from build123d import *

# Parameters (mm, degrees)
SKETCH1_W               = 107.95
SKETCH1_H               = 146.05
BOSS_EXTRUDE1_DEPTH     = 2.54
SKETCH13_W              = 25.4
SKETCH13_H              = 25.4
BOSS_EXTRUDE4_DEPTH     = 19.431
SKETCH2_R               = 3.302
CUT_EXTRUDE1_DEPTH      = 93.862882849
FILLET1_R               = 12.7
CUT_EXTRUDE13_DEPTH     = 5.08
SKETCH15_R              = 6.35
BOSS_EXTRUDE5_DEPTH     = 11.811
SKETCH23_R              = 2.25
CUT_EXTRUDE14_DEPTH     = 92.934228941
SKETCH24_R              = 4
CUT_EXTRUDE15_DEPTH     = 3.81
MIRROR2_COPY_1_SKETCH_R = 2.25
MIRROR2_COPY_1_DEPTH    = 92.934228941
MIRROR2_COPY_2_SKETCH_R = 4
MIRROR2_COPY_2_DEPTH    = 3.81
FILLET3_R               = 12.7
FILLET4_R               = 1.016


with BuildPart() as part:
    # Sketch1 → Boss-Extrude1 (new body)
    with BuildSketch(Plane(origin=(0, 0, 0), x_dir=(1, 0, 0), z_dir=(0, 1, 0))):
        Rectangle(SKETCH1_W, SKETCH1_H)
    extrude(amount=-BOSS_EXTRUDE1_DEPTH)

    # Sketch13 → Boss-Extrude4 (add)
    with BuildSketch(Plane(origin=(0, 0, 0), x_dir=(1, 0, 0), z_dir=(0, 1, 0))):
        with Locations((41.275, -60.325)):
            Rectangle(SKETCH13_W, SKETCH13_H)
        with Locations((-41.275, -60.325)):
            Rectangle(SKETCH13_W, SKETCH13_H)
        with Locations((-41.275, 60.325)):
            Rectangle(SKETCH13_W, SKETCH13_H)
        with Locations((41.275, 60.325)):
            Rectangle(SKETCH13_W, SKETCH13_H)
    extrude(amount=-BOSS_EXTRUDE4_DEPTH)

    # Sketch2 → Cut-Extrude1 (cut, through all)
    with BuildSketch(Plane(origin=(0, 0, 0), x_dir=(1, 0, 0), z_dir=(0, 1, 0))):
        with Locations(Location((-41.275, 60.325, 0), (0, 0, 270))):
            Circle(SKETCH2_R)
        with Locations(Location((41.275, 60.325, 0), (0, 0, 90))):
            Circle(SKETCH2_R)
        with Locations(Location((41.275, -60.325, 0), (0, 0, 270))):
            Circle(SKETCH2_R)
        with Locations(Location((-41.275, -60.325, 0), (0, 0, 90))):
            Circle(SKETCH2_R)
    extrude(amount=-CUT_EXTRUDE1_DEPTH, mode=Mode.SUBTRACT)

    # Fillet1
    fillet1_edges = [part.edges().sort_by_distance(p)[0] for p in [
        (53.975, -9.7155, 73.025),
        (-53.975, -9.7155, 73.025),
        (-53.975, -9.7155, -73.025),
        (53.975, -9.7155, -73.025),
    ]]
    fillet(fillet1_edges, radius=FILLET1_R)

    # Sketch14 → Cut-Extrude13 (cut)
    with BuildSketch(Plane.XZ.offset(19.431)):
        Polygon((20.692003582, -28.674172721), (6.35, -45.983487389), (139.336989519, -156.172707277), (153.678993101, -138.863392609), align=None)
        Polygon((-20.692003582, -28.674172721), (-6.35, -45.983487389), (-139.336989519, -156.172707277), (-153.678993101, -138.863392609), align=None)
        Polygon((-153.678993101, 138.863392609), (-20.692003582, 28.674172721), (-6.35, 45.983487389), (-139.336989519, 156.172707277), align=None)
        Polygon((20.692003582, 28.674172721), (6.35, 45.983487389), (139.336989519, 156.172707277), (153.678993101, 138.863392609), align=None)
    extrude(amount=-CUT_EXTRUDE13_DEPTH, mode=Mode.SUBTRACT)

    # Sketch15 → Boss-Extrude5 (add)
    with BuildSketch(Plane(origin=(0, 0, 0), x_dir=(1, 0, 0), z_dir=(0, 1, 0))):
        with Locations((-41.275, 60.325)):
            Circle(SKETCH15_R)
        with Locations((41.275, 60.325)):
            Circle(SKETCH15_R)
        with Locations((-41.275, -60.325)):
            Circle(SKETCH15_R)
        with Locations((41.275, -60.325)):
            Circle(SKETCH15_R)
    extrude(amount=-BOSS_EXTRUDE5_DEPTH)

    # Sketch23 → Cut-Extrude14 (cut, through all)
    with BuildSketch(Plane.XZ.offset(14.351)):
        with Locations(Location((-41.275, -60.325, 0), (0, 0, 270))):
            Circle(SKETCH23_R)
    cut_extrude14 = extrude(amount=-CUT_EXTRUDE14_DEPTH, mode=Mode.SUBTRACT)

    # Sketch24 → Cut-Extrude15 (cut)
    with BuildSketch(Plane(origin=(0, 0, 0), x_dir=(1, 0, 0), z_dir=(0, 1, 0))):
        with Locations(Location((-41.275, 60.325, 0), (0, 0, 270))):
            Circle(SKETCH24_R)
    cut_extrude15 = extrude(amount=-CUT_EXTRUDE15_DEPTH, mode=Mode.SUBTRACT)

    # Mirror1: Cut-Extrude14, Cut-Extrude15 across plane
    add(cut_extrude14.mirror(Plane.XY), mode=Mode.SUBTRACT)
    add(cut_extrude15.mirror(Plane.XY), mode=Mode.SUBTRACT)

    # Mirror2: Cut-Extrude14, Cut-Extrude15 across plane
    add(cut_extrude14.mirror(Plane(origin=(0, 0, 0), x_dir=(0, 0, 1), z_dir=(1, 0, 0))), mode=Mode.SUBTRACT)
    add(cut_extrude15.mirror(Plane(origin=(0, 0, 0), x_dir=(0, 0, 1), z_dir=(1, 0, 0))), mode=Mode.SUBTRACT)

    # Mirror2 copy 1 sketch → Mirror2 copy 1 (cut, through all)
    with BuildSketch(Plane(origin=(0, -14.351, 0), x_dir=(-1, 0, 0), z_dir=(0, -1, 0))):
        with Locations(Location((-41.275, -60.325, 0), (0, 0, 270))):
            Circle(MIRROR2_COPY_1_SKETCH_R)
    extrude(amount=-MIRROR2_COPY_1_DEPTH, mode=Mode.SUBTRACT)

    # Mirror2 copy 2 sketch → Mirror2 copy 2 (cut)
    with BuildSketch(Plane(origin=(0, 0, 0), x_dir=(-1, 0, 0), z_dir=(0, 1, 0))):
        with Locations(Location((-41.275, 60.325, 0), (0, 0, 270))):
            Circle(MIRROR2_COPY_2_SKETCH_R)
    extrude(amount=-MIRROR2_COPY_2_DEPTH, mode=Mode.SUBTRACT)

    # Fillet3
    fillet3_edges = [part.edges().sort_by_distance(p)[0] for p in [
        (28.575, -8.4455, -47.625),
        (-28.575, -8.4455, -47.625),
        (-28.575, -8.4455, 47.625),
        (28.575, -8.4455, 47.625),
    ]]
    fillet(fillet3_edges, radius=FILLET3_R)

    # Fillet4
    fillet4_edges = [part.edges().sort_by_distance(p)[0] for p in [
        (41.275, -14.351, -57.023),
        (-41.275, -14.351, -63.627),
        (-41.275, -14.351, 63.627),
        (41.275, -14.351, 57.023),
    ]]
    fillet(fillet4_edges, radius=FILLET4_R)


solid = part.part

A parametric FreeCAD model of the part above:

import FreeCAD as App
import Part
import Sketcher

V = App.Vector
Q = App.Units.Quantity


def edges_at(feature, points):
    """Names of the edges that pass closest to the given points."""
    edges = feature.Shape.Edges
    near = lambda p: min(range(len(edges)), key=lambda i: edges[i].distToShape(Part.Vertex(*p))[0])
    return sorted({f"Edge{near(p) + 1}" for p in points})


def add_polygon(sketch, points):
    """Adds a closed chain of lines whose ends are joined by coincident constraints."""
    first, n = sketch.GeometryCount, len(points)
    for a, b in zip(points, points[1:] + points[:1]):
        sketch.addGeometry(Part.LineSegment(App.Vector(*a, 0), App.Vector(*b, 0)), False)
    for i in range(n):
        sketch.addConstraint(Sketcher.Constraint("Coincident", first + i, 2, first + (i + 1) % n, 1))

doc = App.newDocument("Part")
body = doc.addObject("PartDesign::Body", "Body")

# Sketch on XZ plane
sketch1 = body.newObject("Sketcher::SketchObject", "Sketch")
sketch1.AttachmentSupport = (doc.getObject("XZ_Plane"), [""])
sketch1.MapMode = "FlatFace"
add_polygon(sketch1, [(-54, -73), (-54, 73), (54, 73), (54, -73)])  # lines 0-3
sketch1.addConstraint(Sketcher.Constraint("Vertical", 0))
sketch1.addConstraint(Sketcher.Constraint("Horizontal", 1))
sketch1.addConstraint(Sketcher.Constraint("Vertical", 2))
sketch1.addConstraint(Sketcher.Constraint("Horizontal", 3))
sketch1.addConstraint(Sketcher.Constraint("Symmetric", 0, 2, 2, 2, -1, 1))
sketch1.addConstraint(Sketcher.Constraint("DistanceX", 1, 1, 1, 2, Q("4.25 in")))
sketch1.addConstraint(Sketcher.Constraint("DistanceY", 0, 1, 0, 2, Q("5.75 in")))
pad1 = body.newObject("PartDesign::Pad", "Pad")
pad1.Profile = sketch1
pad1.Length = Q("0.1 in")

# Sketch on XZ plane
sketch2 = body.newObject("Sketcher::SketchObject", "Sketch001")
sketch2.AttachmentSupport = (doc.getObject("XZ_Plane"), [""])
sketch2.MapMode = "FlatFace"
add_polygon(sketch2, [(29, 48), (29, 73), (54, 73), (54, 48)])  # lines 0-3
add_polygon(sketch2, [(-54, 48), (-54, 73), (-29, 73), (-29, 48)])  # lines 4-7
add_polygon(sketch2, [(-54, -73), (-54, -48), (-29, -48), (-29, -73)])  # lines 8-11
add_polygon(sketch2, [(29, -73), (29, -48), (54, -48), (54, -73)])  # lines 12-15
sketch2.addConstraint(Sketcher.Constraint("Vertical", 0))
sketch2.addConstraint(Sketcher.Constraint("Horizontal", 1))
sketch2.addConstraint(Sketcher.Constraint("Vertical", 2))
sketch2.addConstraint(Sketcher.Constraint("Horizontal", 3))
sketch2.addConstraint(Sketcher.Constraint("Vertical", 4))
sketch2.addConstraint(Sketcher.Constraint("Horizontal", 5))
sketch2.addConstraint(Sketcher.Constraint("Vertical", 6))
sketch2.addConstraint(Sketcher.Constraint("Horizontal", 7))
sketch2.addConstraint(Sketcher.Constraint("Vertical", 8))
sketch2.addConstraint(Sketcher.Constraint("Horizontal", 9))
sketch2.addConstraint(Sketcher.Constraint("Vertical", 10))
sketch2.addConstraint(Sketcher.Constraint("Horizontal", 11))
sketch2.addConstraint(Sketcher.Constraint("Vertical", 12))
sketch2.addConstraint(Sketcher.Constraint("Horizontal", 13))
sketch2.addConstraint(Sketcher.Constraint("Vertical", 14))
sketch2.addConstraint(Sketcher.Constraint("Horizontal", 15))
sketch2.addConstraint(Sketcher.Constraint("Symmetric", 2, 2, 8, 2, -1, 1))
sketch2.addConstraint(Sketcher.Constraint("Symmetric", 0, 2, 10, 2, -1, 1))
sketch2.addConstraint(Sketcher.Constraint("Symmetric", 6, 2, 12, 2, -1, 1))
sketch2.addConstraint(Sketcher.Constraint("Symmetric", 4, 2, 14, 2, -1, 1))
sketch2.addConstraint(Sketcher.Constraint("Symmetric", 1, 2, 4, 2, -2))
sketch2.addConstraint(Sketcher.Constraint("Symmetric", 3, 2, 6, 2, -2))
sketch2.addConstraint(Sketcher.Constraint("Equal", 15, 0))
sketch2.addConstraint(Sketcher.Constraint("DistanceX", 1, 1, 1, 2, Q("1 in")))
sketch2.addConstraint(Sketcher.Constraint("DistanceX", 4, 2, 0, 2, Q("3.25 in")))
sketch2.addConstraint(Sketcher.Constraint("DistanceY", 8, 2, 7, 2, Q("3.75 in")))
pad2 = body.newObject("PartDesign::Pad", "Pad001")
pad2.Profile = sketch2
pad2.Length = Q("0.765 in")

# Sketch on XZ plane
sketch3 = body.newObject("Sketcher::SketchObject", "Sketch002")
sketch3.AttachmentSupport = (doc.getObject("XZ_Plane"), [""])
sketch3.MapMode = "FlatFace"
sketch3.addGeometry(Part.Circle(V(-41.3, -60.3, 0), V(0, 0, 1), 3.3), False)
sketch3.addGeometry(Part.Circle(V(41.3, -60.3, 0), V(0, 0, 1), 3.3), False)
sketch3.addGeometry(Part.Circle(V(41.3, 60.3, 0), V(0, 0, 1), 3.3), False)
sketch3.addGeometry(Part.Circle(V(-41.3, 60.3, 0), V(0, 0, 1), 3.3), False)
sketch3.addConstraint(Sketcher.Constraint("Equal", 0, 1))
sketch3.addConstraint(Sketcher.Constraint("Equal", 1, 2))
sketch3.addConstraint(Sketcher.Constraint("Equal", 2, 3))
sketch3.addConstraint(Sketcher.Constraint("Symmetric", 0, 3, 2, 3, -1, 1))
sketch3.addConstraint(Sketcher.Constraint("Symmetric", 1, 3, 3, 3, -1, 1))
sketch3.addConstraint(Sketcher.Constraint("Symmetric", 0, 3, 1, 3, -2))
sketch3.addConstraint(Sketcher.Constraint("Diameter", 0, Q("0.26 in")))
sketch3.addConstraint(Sketcher.Constraint("DistanceX", 0, 3, 1, 3, Q("3.25 in")))
sketch3.addConstraint(Sketcher.Constraint("DistanceY", 1, 3, 2, 3, Q("4.75 in")))
pocket1 = body.newObject("PartDesign::Pocket", "Pocket")
pocket1.Profile = sketch3
pocket1.Type = "ThroughAll"
pocket1.Reversed = True
doc.recompute()

fillet = body.newObject("PartDesign::Fillet", "Fillet")
fillet.Base = (pocket1, edges_at(pocket1, [
    (53.975, -9.716, 73.025),
    (-53.975, -9.716, 73.025),
    (-53.975, -9.716, -73.025),
    (53.975, -9.716, -73.025),
]))
fillet.Radius = Q("0.5 in")

# Sketch on XZ plane
sketch4 = body.newObject("Sketcher::SketchObject", "Sketch003")
sketch4.AttachmentSupport = (doc.getObject("XZ_Plane"), [""])
sketch4.MapMode = "FlatFace"
sketch4.AttachmentOffset = App.Placement(V(0, 0, 0.765 * 25.4), App.Rotation())
add_polygon(sketch4, [(21, -29), (6, -46), (139, -156), (154, -139)])  # lines 0-3
add_polygon(sketch4, [(-6, -46), (-21, -29), (-154, -139), (-139, -156)])  # lines 4-7
add_polygon(sketch4, [(-154, 139), (-21, 29), (-6, 46), (-139, 156)])  # lines 8-11
add_polygon(sketch4, [(6, 46), (21, 29), (154, 139), (139, 156)])  # lines 12-15
sketch4.addConstraint(Sketcher.Constraint("Symmetric", 3, 2, 8, 2, -1, 1))
sketch4.addConstraint(Sketcher.Constraint("Symmetric", 0, 2, 9, 2, -1, 1))
sketch4.addConstraint(Sketcher.Constraint("Symmetric", 1, 2, 10, 2, -1, 1))
sketch4.addConstraint(Sketcher.Constraint("Symmetric", 2, 2, 11, 2, -1, 1))
sketch4.addConstraint(Sketcher.Constraint("Symmetric", 4, 2, 12, 2, -1, 1))
sketch4.addConstraint(Sketcher.Constraint("Symmetric", 5, 2, 13, 2, -1, 1))
sketch4.addConstraint(Sketcher.Constraint("Symmetric", 6, 2, 14, 2, -1, 1))
sketch4.addConstraint(Sketcher.Constraint("Symmetric", 7, 2, 15, 2, -1, 1))
sketch4.addConstraint(Sketcher.Constraint("Symmetric", 3, 2, 4, 2, -2))
sketch4.addConstraint(Sketcher.Constraint("Symmetric", 2, 2, 5, 2, -2))
sketch4.addConstraint(Sketcher.Constraint("Symmetric", 1, 2, 6, 2, -2))
sketch4.addConstraint(Sketcher.Constraint("Symmetric", 0, 2, 7, 2, -2))
sketch4.addConstraint(Sketcher.Constraint("Perpendicular", 0, 1))
sketch4.addConstraint(Sketcher.Constraint("Perpendicular", 1, 2))
sketch4.addConstraint(Sketcher.Constraint("Perpendicular", 2, 3))
sketch4.addConstraint(Sketcher.Constraint("DistanceX", 7, 2, 0, 2, Q("0.5 in")))
sketch4.addConstraint(Sketcher.Constraint("Distance", 0, Q("0.885 in")))
sketch4.addConstraint(Sketcher.Constraint("DistanceX", 4, 2, 2, 2, Q("6.8649999 in")))
sketch4.addConstraint(Sketcher.Constraint("Distance", 1, Q("172.70554 mm")))
sketch4.addConstraint(Sketcher.Constraint("DistanceY", 7, 2, 8, 2, Q("74.65766 mm")))
pocket2 = body.newObject("PartDesign::Pocket", "Pocket001")
pocket2.Profile = sketch4
pocket2.Length = Q("0.2 in")

# Sketch on XZ plane
sketch5 = body.newObject("Sketcher::SketchObject", "Sketch004")
sketch5.AttachmentSupport = (doc.getObject("XZ_Plane"), [""])
sketch5.MapMode = "FlatFace"
sketch5.addGeometry(Part.Circle(V(-41, -60, 0), V(0, 0, 1), 6), False)
sketch5.addGeometry(Part.Circle(V(41, -60, 0), V(0, 0, 1), 6), False)
sketch5.addGeometry(Part.Circle(V(-41, 60, 0), V(0, 0, 1), 6), False)
sketch5.addGeometry(Part.Circle(V(41, 60, 0), V(0, 0, 1), 6), False)
sketch5.addConstraint(Sketcher.Constraint("Equal", 0, 1))
sketch5.addConstraint(Sketcher.Constraint("Equal", 1, 2))
sketch5.addConstraint(Sketcher.Constraint("Equal", 2, 3))
sketch5.addConstraint(Sketcher.Constraint("Symmetric", 1, 3, 2, 3, -1, 1))
sketch5.addConstraint(Sketcher.Constraint("Symmetric", 0, 3, 3, 3, -1, 1))
sketch5.addConstraint(Sketcher.Constraint("Symmetric", 0, 3, 1, 3, -2))
sketch5.addConstraint(Sketcher.Constraint("Diameter", 0, Q("0.5 in")))
sketch5.addConstraint(Sketcher.Constraint("DistanceX", 0, 3, 1, 3, Q("3.25 in")))
sketch5.addConstraint(Sketcher.Constraint("DistanceY", 0, 3, 2, 3, Q("4.75 in")))
pad3 = body.newObject("PartDesign::Pad", "Pad002")
pad3.Profile = sketch5
pad3.Length = Q("0.465 in")

# Sketch on XZ plane
sketch6 = body.newObject("Sketcher::SketchObject", "Sketch005")
sketch6.AttachmentSupport = (doc.getObject("XZ_Plane"), [""])
sketch6.MapMode = "FlatFace"
sketch6.AttachmentOffset = App.Placement(V(0, 0, 0.565 * 25.4), App.Rotation())
sketch6.addGeometry(Part.Circle(V(-41.3, -60.3, 0), V(0, 0, 1), 2.2), False)
sketch6.addConstraint(Sketcher.Constraint("Diameter", 0, Q("4.5 mm")))
sketch6.addConstraint(Sketcher.Constraint("DistanceX", 0, 3, -1, 1, Q("1.625 in")))
sketch6.addConstraint(Sketcher.Constraint("DistanceY", 0, 3, -1, 1, Q("2.375 in")))
pocket3 = body.newObject("PartDesign::Pocket", "Pocket002")
pocket3.Profile = sketch6
pocket3.Type = "ThroughAll"

# Sketch on XZ plane
sketch7 = body.newObject("Sketcher::SketchObject", "Sketch006")
sketch7.AttachmentSupport = (doc.getObject("XZ_Plane"), [""])
sketch7.MapMode = "FlatFace"
sketch7.addGeometry(Part.Circle(V(-41.3, -60.3, 0), V(0, 0, 1), 4), False)
sketch7.addConstraint(Sketcher.Constraint("Diameter", 0, Q("8 mm")))
sketch7.addConstraint(Sketcher.Constraint("DistanceX", 0, 3, -1, 1, Q("1.625 in")))
sketch7.addConstraint(Sketcher.Constraint("DistanceY", 0, 3, -1, 1, Q("2.375 in")))
pocket4 = body.newObject("PartDesign::Pocket", "Pocket003")
pocket4.Profile = sketch7
pocket4.Length = Q("0.15 in")
pocket4.Reversed = True
doc.recompute()

mirrored = body.newObject("PartDesign::Mirrored", "Mirrored")
mirrored.Originals = [pocket3, pocket4]
mirrored.MirrorPlane = (doc.getObject("XY_Plane"), [""])
body.Tip = mirrored
doc.recompute()

mirrored2 = body.newObject("PartDesign::Mirrored", "Mirrored001")
mirrored2.Originals = [pocket3, pocket4]
mirrored2.MirrorPlane = (doc.getObject("YZ_Plane"), [""])
body.Tip = mirrored2

# Sketch on XZ plane
sketch8 = body.newObject("Sketcher::SketchObject", "Sketch007")
sketch8.AttachmentSupport = (doc.getObject("XZ_Plane"), [""])
sketch8.MapMode = "FlatFace"
sketch8.AttachmentOffset = App.Placement(V(0, 0, 0.565 * 25.4), App.Rotation())
sketch8.addGeometry(Part.Circle(V(41.3, 60.3, 0), V(0, 0, 1), 2.2), False)
sketch8.addConstraint(Sketcher.Constraint("Diameter", 0, Q("4.5 mm")))
sketch8.addConstraint(Sketcher.Constraint("DistanceX", -1, 1, 0, 3, Q("1.625 in")))
sketch8.addConstraint(Sketcher.Constraint("DistanceY", -1, 1, 0, 3, Q("2.375 in")))
pocket5 = body.newObject("PartDesign::Pocket", "Pocket004")
pocket5.Profile = sketch8
pocket5.Type = "ThroughAll"

# Sketch on XZ plane
sketch9 = body.newObject("Sketcher::SketchObject", "Sketch008")
sketch9.AttachmentSupport = (doc.getObject("XZ_Plane"), [""])
sketch9.MapMode = "FlatFace"
sketch9.addGeometry(Part.Circle(V(41.3, 60.3, 0), V(0, 0, 1), 4), False)
sketch9.addConstraint(Sketcher.Constraint("Diameter", 0, Q("8 mm")))
sketch9.addConstraint(Sketcher.Constraint("DistanceX", -1, 1, 0, 3, Q("1.625 in")))
sketch9.addConstraint(Sketcher.Constraint("DistanceY", -1, 1, 0, 3, Q("2.375 in")))
pocket6 = body.newObject("PartDesign::Pocket", "Pocket005")
pocket6.Profile = sketch9
pocket6.Length = Q("0.15 in")
pocket6.Reversed = True
doc.recompute()

fillet2 = body.newObject("PartDesign::Fillet", "Fillet001")
fillet2.Base = (pocket6, edges_at(pocket6, [
    (28.575, -8.445, -47.625),
    (-28.575, -8.445, -47.625),
    (-28.575, -8.445, 47.625),
    (28.575, -8.445, 47.625),
]))
fillet2.Radius = Q("0.5 in")
doc.recompute()

fillet3 = body.newObject("PartDesign::Fillet", "Fillet002")
fillet3.Base = (fillet2, edges_at(fillet2, [
    (41.275, -14.351, -57.023),
    (-41.275, -14.351, -63.627),
    (-41.275, -14.351, 63.627),
    (41.275, -14.351, 57.023),
]))
fillet3.Radius = Q("0.04 in")

doc.recompute()
